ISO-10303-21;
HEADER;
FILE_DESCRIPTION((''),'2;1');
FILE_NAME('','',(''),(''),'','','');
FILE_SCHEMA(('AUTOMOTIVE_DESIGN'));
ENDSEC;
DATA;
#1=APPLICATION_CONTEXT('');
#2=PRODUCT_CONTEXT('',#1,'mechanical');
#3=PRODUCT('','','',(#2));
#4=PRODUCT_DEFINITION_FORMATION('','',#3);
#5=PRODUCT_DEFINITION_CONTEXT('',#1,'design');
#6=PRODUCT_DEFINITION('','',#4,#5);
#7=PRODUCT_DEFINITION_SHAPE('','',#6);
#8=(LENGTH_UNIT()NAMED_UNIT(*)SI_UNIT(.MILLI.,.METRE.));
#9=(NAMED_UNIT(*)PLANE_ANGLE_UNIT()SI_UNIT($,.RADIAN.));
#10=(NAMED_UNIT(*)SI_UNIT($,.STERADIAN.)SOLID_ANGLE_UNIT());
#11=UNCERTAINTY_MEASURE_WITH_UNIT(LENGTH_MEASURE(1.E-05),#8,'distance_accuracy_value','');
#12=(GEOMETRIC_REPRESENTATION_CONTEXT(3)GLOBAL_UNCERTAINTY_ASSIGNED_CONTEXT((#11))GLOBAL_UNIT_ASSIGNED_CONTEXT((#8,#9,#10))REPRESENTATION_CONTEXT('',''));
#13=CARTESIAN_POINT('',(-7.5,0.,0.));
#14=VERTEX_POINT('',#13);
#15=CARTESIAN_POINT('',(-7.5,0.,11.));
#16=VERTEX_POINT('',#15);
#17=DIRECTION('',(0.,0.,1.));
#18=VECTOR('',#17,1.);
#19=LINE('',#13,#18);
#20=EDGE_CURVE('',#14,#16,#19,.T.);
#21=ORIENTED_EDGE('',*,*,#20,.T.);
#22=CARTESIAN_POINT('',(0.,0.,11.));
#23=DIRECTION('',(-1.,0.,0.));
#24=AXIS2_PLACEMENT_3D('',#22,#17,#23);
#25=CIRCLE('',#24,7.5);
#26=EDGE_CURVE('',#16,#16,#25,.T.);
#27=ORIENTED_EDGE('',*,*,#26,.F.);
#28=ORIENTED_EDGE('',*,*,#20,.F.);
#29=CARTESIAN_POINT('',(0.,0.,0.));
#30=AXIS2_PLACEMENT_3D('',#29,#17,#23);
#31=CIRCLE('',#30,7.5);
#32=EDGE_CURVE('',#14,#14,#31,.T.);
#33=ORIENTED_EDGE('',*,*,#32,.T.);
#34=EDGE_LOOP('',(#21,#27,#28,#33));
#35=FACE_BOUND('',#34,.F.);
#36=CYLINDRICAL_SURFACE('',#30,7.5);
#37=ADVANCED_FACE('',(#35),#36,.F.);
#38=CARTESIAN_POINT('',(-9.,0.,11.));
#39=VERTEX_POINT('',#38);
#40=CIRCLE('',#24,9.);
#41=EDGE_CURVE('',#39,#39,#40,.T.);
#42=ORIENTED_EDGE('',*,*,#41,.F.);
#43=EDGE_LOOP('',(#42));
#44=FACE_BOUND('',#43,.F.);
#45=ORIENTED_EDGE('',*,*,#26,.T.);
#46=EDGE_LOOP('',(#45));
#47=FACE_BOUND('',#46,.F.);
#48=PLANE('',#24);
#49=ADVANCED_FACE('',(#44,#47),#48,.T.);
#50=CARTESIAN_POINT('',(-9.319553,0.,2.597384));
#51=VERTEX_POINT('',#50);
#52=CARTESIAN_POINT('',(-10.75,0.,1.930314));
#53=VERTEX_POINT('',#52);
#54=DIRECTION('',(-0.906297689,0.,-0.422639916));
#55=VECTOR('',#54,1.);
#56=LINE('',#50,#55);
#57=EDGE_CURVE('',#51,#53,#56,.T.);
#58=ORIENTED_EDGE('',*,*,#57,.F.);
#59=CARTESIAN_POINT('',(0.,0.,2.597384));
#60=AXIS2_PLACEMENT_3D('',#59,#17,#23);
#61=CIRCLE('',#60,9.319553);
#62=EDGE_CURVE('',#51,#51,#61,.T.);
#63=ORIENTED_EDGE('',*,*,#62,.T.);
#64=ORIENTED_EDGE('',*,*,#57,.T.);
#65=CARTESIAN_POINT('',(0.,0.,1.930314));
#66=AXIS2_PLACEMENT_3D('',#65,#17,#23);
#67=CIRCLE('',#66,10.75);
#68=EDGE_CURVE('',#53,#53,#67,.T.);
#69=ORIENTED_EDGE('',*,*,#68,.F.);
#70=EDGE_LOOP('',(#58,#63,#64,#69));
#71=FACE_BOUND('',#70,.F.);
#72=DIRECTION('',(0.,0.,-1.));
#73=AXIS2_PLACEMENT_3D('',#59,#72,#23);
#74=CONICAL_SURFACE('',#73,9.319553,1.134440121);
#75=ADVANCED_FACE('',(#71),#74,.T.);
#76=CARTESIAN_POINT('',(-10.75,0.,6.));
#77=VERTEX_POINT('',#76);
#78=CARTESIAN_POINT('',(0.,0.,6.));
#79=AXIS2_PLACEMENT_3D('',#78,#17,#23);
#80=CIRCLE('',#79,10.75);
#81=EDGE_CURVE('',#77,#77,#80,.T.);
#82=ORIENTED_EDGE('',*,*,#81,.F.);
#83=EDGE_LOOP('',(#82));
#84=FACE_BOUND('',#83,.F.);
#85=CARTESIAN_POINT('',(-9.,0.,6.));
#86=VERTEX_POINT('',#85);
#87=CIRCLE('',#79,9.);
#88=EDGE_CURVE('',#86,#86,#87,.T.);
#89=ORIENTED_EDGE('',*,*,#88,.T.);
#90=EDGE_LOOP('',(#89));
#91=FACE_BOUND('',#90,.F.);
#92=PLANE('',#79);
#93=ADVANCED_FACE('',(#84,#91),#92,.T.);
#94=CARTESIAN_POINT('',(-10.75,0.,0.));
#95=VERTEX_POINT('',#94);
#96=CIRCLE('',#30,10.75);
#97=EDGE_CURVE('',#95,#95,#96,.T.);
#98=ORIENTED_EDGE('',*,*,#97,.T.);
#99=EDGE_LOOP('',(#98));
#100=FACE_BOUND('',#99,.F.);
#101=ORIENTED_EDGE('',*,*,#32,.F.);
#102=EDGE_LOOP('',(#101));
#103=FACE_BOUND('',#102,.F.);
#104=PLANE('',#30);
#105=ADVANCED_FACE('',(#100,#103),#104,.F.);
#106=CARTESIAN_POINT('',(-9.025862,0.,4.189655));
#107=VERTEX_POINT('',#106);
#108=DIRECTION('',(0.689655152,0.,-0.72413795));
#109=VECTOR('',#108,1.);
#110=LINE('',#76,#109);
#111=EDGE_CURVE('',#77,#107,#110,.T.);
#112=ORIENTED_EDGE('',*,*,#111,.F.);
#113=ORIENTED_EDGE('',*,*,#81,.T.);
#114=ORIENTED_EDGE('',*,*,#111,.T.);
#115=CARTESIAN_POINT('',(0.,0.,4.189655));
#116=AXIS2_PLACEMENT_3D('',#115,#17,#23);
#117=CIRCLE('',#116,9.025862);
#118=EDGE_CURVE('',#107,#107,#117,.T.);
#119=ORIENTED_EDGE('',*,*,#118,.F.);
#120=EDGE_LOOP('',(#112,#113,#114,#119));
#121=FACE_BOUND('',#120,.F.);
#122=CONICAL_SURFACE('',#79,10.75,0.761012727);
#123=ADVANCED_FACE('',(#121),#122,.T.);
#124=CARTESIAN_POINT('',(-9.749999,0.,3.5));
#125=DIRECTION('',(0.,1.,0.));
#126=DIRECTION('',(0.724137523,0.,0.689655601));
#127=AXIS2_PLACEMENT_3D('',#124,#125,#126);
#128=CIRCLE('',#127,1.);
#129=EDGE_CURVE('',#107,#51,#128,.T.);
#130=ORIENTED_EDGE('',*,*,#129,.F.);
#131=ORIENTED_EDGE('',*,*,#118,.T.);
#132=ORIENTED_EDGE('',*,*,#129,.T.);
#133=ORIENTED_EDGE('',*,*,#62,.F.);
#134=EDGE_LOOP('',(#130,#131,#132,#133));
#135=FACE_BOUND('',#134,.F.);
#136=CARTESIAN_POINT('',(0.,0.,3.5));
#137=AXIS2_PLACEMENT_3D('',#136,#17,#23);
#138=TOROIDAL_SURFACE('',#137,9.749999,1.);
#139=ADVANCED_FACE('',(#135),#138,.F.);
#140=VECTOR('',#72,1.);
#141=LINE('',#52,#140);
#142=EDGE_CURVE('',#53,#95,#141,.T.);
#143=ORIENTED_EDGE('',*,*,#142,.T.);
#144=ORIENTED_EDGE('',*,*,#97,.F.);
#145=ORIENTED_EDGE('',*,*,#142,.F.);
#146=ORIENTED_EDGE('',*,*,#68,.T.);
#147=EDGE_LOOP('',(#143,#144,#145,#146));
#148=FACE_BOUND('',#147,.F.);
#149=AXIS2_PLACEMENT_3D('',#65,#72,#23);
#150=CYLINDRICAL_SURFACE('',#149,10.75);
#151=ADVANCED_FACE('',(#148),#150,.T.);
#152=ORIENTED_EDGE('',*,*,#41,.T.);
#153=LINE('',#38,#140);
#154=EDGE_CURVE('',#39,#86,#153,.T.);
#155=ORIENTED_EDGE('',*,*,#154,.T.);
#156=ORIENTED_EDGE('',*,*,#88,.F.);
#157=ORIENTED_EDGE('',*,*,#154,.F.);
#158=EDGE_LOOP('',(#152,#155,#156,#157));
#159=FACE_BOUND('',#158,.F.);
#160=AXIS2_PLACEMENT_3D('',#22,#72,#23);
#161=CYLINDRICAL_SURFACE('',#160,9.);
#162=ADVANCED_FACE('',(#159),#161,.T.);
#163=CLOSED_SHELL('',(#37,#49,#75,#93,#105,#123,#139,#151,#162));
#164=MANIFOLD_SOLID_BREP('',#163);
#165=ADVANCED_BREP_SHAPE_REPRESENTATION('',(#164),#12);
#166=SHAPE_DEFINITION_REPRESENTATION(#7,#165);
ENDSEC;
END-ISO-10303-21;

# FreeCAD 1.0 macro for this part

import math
import FreeCAD as App
import Part
import Sketcher
from FreeCAD import Vector

doc = App.newDocument("Part")
body = doc.addObject("PartDesign::Body", "Body")

# Sketch on XZ plane
sketch1 = body.newObject("Sketcher::SketchObject", "Sketch")
sketch1.AttachmentSupport = (doc.getObject("XZ_Plane"), [""])
sketch1.MapMode = "FlatFace"
sketch1.addGeometry([
    Part.LineSegment(Vector(-10.75, 0, 0), Vector(-7.5, 0, 0)),  # 0
    Part.LineSegment(Vector(-7.5, 0, 0), Vector(-7.5, 11, 0)),  # 1
    Part.LineSegment(Vector(-7.5, 11, 0), Vector(-9, 11, 0)),  # 2
    Part.LineSegment(Vector(-9, 11, 0), Vector(-9, 6, 0)),  # 3
    Part.LineSegment(Vector(-9, 6, 0), Vector(-10.75, 6, 0)),  # 4
    Part.LineSegment(Vector(-10.75, 6, 0), Vector(-9.025862, 4.189655, 0)),  # 5
    Part.ArcOfCircle(Part.Circle(Vector(-9.749999, 3.5, 0), Vector(0, 0, 1), 1), math.radians(-64.504108), math.radians(43.602853)),  # 6
    Part.LineSegment(Vector(-9.319553, 2.597384, 0), Vector(-10.75, 1.930314, 0)),  # 7
    Part.LineSegment(Vector(-10.75, 1.930314, 0), Vector(-10.75, 0, 0)),  # 8
], False)
sketch1.addConstraint([
    Sketcher.Constraint("Coincident", 0, 2, 1, 1),
    Sketcher.Constraint("Coincident", 1, 2, 2, 1),
    Sketcher.Constraint("Coincident", 2, 2, 3, 1),
    Sketcher.Constraint("Coincident", 3, 2, 4, 1),
    Sketcher.Constraint("Coincident", 4, 2, 5, 1),
    Sketcher.Constraint("Tangent", 5, 2, 6, 2),
    Sketcher.Constraint("Coincident", 6, 1, 7, 1),
    Sketcher.Constraint("Coincident", 7, 2, 8, 1),
    Sketcher.Constraint("Coincident", 8, 2, 0, 1),
    Sketcher.Constraint("Horizontal", 0),
    Sketcher.Constraint("Vertical", 1),
    Sketcher.Constraint("Horizontal", 2),
    Sketcher.Constraint("Vertical", 3),
    Sketcher.Constraint("Horizontal", 4),
    Sketcher.Constraint("Vertical", 8),
    Sketcher.Constraint("PointOnObject", 0, 2, -1),
    Sketcher.Constraint("Vertical", 4, 2, 7, 2),
    Sketcher.Constraint("Radius", 6, 1.0),
    Sketcher.Constraint("DistanceY", 1, 1, 1, 2, 11.0),
    Sketcher.Constraint("DistanceY", 3, 2, 3, 1, 5.0),
    Sketcher.Constraint("DistanceX", 2, 2, 2, 1, 1.5),
    Sketcher.Constraint("DistanceX", 2, 2, -1, 1, 9.0),
    Sketcher.Constraint("DistanceX", 4, 2, 6, 3, 1.000001),
    Sketcher.Constraint("Distance", 5, 2.5),
    Sketcher.Constraint("DistanceX", 0, 1, 0, 2, 3.25),
    Sketcher.Constraint("Distance", 7, 1.578341),
    Sketcher.Constraint("DistanceY", 8, 2, 8, 1, 1.930314),
])
revolution = body.newObject("PartDesign::Revolution", "Revolution")
revolution.Profile = sketch1
revolution.ReferenceAxis = (sketch1, ["V_Axis"])
revolution.Angle = 360

doc.recompute()
